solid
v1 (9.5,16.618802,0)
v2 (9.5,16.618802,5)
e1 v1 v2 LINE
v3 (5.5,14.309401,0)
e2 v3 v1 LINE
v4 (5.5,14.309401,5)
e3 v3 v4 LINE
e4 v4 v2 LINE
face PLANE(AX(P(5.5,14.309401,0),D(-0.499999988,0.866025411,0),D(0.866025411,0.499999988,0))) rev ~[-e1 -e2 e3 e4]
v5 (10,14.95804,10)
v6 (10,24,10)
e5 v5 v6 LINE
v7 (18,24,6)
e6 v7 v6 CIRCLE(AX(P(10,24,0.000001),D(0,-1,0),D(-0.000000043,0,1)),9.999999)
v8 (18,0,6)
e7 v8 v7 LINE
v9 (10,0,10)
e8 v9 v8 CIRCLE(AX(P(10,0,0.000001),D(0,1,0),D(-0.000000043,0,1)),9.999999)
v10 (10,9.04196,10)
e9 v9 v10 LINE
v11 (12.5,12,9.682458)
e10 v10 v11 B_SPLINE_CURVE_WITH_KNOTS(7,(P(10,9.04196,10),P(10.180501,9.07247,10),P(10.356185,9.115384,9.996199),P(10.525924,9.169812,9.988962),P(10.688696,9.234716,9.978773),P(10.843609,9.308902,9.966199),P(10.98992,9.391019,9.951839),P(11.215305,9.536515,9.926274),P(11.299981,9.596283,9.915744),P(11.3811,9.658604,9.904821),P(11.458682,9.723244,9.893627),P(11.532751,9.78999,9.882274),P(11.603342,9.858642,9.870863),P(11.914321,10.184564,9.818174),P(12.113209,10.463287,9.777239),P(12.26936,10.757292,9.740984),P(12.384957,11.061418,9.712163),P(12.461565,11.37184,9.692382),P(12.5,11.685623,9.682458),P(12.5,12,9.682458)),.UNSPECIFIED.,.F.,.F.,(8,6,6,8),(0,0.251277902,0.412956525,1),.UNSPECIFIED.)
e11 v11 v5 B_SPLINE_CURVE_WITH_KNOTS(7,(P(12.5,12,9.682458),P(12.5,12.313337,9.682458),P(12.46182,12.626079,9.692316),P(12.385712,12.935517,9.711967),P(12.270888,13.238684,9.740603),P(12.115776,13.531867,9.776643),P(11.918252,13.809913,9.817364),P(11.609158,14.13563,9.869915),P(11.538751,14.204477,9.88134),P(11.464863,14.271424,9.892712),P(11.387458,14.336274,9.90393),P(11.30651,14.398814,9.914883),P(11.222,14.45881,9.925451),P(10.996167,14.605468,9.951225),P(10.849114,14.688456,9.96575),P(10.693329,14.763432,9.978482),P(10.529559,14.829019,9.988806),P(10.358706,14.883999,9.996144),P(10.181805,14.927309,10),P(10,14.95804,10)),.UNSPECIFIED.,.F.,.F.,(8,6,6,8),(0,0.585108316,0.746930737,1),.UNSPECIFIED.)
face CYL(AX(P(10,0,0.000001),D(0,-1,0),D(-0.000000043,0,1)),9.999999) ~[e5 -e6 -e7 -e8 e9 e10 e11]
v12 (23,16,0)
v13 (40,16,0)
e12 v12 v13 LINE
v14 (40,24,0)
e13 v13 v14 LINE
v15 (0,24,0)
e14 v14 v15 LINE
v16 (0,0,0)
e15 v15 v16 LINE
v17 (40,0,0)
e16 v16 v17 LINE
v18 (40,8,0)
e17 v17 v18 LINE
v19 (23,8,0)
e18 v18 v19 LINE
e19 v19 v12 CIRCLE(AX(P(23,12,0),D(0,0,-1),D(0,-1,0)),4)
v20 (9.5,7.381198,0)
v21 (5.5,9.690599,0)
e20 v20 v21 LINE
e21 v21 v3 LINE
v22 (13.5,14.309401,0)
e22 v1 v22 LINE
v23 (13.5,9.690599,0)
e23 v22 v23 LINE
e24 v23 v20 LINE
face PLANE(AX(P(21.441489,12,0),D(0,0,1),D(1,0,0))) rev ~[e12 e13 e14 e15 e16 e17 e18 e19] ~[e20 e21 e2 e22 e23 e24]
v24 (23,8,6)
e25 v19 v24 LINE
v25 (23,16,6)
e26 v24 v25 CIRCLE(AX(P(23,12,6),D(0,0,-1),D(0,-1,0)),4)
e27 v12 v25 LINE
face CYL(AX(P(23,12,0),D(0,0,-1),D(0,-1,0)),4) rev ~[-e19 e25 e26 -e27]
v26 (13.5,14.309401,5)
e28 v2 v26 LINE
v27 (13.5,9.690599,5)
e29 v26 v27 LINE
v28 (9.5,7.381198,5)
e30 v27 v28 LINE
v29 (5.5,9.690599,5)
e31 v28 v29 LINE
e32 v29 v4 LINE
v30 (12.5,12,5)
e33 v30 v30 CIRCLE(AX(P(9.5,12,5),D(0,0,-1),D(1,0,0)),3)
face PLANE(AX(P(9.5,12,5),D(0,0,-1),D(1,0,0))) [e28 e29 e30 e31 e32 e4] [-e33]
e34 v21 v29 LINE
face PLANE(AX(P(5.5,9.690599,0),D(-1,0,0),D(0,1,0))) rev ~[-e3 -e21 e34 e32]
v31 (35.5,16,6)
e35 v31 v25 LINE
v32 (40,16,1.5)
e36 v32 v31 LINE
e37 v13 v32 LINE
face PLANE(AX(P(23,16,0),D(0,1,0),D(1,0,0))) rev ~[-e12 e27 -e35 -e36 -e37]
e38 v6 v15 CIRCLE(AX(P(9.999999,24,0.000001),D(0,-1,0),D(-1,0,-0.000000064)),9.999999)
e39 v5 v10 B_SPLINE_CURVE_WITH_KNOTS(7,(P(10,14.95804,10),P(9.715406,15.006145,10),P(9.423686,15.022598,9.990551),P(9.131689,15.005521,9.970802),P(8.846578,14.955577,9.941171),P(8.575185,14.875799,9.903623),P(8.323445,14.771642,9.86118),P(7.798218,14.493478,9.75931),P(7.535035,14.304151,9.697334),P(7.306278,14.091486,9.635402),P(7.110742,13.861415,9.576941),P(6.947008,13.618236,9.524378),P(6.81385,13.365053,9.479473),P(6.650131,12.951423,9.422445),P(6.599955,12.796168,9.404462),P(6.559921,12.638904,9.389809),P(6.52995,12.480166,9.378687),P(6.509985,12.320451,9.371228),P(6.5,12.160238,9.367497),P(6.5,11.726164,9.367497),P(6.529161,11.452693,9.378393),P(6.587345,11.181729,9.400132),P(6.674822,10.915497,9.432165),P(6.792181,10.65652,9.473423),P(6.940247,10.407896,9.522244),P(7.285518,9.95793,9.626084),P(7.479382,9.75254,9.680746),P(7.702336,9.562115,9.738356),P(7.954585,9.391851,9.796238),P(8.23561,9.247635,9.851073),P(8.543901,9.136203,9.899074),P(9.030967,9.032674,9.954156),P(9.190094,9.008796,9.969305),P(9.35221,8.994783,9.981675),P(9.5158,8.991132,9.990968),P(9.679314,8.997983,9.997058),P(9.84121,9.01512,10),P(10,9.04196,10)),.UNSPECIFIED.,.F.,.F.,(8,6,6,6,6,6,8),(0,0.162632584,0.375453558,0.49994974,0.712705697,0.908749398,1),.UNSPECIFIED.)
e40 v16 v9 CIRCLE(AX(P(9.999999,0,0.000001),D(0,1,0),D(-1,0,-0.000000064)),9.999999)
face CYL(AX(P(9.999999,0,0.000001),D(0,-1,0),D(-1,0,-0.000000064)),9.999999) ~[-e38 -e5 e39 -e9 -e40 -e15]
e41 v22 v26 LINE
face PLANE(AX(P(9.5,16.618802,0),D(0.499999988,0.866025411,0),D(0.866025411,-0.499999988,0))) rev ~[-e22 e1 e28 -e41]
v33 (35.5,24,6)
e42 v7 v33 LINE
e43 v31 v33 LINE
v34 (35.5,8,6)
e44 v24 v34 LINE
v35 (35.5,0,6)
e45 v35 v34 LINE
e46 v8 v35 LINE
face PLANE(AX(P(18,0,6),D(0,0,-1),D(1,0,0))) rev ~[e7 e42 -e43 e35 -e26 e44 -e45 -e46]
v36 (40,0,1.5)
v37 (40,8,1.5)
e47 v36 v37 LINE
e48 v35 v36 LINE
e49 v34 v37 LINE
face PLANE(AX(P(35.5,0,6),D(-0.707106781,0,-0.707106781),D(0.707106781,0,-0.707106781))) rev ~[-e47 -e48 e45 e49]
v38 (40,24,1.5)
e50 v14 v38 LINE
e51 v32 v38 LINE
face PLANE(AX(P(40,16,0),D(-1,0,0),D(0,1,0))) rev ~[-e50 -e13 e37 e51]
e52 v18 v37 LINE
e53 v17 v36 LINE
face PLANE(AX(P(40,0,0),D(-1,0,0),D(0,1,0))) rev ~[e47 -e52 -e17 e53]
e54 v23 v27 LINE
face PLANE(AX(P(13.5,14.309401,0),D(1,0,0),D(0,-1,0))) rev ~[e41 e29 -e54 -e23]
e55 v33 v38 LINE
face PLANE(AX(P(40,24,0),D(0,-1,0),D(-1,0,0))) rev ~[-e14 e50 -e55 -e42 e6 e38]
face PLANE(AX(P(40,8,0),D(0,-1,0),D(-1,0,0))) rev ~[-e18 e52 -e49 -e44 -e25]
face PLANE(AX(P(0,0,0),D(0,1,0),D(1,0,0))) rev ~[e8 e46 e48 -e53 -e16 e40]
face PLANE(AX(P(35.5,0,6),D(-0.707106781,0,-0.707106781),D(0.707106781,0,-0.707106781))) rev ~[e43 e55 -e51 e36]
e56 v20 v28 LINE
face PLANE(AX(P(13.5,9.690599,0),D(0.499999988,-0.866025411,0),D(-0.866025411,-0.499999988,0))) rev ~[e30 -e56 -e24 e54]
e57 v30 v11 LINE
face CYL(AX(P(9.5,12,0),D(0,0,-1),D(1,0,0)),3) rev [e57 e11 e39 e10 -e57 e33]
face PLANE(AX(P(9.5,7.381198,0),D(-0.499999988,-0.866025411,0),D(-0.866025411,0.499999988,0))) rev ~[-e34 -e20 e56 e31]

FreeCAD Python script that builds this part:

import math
import FreeCAD as App
import Part
import Sketcher

V = App.Vector
Q = App.Units.Quantity

doc = App.newDocument("Part")
body = doc.addObject("PartDesign::Body", "Body")

# Sketch on XY plane
sketch1 = body.newObject("Sketcher::SketchObject", "Sketch")
sketch1.AttachmentSupport = (doc.getObject("XY_Plane"), [""])
sketch1.MapMode = "FlatFace"
sketch1.addGeometry(Part.LineSegment(V(0, 24, 0), V(0, 0, 0)), False)
sketch1.addGeometry(Part.LineSegment(V(0, 0, 0), V(40, 0, 0)), False)
sketch1.addGeometry(Part.LineSegment(V(40, 0, 0), V(40, 8, 0)), False)
sketch1.addGeometry(Part.LineSegment(V(40, 8, 0), V(23, 8, 0)), False)
sketch1.addGeometry(Part.ArcOfCircle(Part.Circle(V(23, 12, 0), V(0, 0, 1), 4), math.radians(90), math.radians(270)), False)
sketch1.addGeometry(Part.LineSegment(V(23, 16, 0), V(40, 16, 0)), False)
sketch1.addGeometry(Part.LineSegment(V(40, 16, 0), V(40, 24, 0)), False)
sketch1.addGeometry(Part.LineSegment(V(40, 24, 0), V(0, 24, 0)), False)
sketch1.addGeometry(Part.Circle(V(9.5, 12, 0), V(0, 0, 1), 3), False)
sketch1.addConstraint(Sketcher.Constraint("Coincident", 0, 2, 1, 1))
sketch1.addConstraint(Sketcher.Constraint("Coincident", 1, 2, 2, 1))
sketch1.addConstraint(Sketcher.Constraint("Coincident", 2, 2, 3, 1))
sketch1.addConstraint(Sketcher.Constraint("Tangent", 3, 2, 4, 2))
sketch1.addConstraint(Sketcher.Constraint("Tangent", 4, 1, 5, 1))
sketch1.addConstraint(Sketcher.Constraint("Coincident", 5, 2, 6, 1))
sketch1.addConstraint(Sketcher.Constraint("Coincident", 6, 2, 7, 1))
sketch1.addConstraint(Sketcher.Constraint("Coincident", 7, 2, 0, 1))
sketch1.addConstraint(Sketcher.Constraint("Vertical", 0))
sketch1.addConstraint(Sketcher.Constraint("Horizontal", 1))
sketch1.addConstraint(Sketcher.Constraint("Vertical", 2))
sketch1.addConstraint(Sketcher.Constraint("Horizontal", 3))
sketch1.addConstraint(Sketcher.Constraint("Horizontal", 5))
sketch1.addConstraint(Sketcher.Constraint("Vertical", 6))
sketch1.addConstraint(Sketcher.Constraint("Horizontal", 7))
sketch1.addConstraint(Sketcher.Constraint("Coincident", 0, 2, -1, 1))
sketch1.addConstraint(Sketcher.Constraint("Horizontal", 4, 3, 8, 3))
sketch1.addConstraint(Sketcher.Constraint("Vertical", 2, 2, 5, 2))
sketch1.addConstraint(Sketcher.Constraint("Equal", 2, 6))
sketch1.addConstraint(Sketcher.Constraint("Diameter", 8, Q("6 mm")))
sketch1.addConstraint(Sketcher.Constraint("Radius", 4, Q("4 mm")))
sketch1.addConstraint(Sketcher.Constraint("DistanceX", 1, 1, 1, 2, Q("40 mm")))
sketch1.addConstraint(Sketcher.Constraint("DistanceX", 3, 2, 3, 1, Q("17 mm")))
sketch1.addConstraint(Sketcher.Constraint("DistanceY", 0, 2, 0, 1, Q("24 mm")))
sketch1.addConstraint(Sketcher.Constraint("DistanceX", -1, 1, 8, 3, Q("9.5 mm")))
pad1 = body.newObject("PartDesign::Pad", "Pad")
pad1.Profile = sketch1
pad1.Length = 10

# Sketch on XY plane
sketch2 = body.newObject("Sketcher::SketchObject", "Sketch001")
sketch2.AttachmentSupport = (doc.getObject("XY_Plane"), [""])
sketch2.MapMode = "FlatFace"
sketch2.addGeometry(Part.LineSegment(V(9.5, 16.6, 0), V(13.5, 14.3, 0)), False)
sketch2.addGeometry(Part.LineSegment(V(13.5, 14.3, 0), V(13.5, 9.7, 0)), False)
sketch2.addGeometry(Part.LineSegment(V(13.5, 9.7, 0), V(9.5, 7.4, 0)), False)
sketch2.addGeometry(Part.LineSegment(V(9.5, 7.4, 0), V(5.5, 9.7, 0)), False)
sketch2.addGeometry(Part.LineSegment(V(5.5, 9.7, 0), V(5.5, 14.3, 0)), False)
sketch2.addGeometry(Part.LineSegment(V(5.5, 14.3, 0), V(9.5, 16.6, 0)), False)
sketch2.addGeometry(Part.Circle(V(9.5, 12, 0), V(0, 0, 1), 3), False)
sketch2.addConstraint(Sketcher.Constraint("Coincident", 0, 2, 1, 1))
sketch2.addConstraint(Sketcher.Constraint("Coincident", 1, 2, 2, 1))
sketch2.addConstraint(Sketcher.Constraint("Coincident", 2, 2, 3, 1))
sketch2.addConstraint(Sketcher.Constraint("Coincident", 3, 2, 4, 1))
sketch2.addConstraint(Sketcher.Constraint("Coincident", 4, 2, 5, 1))
sketch2.addConstraint(Sketcher.Constraint("Coincident", 5, 2, 0, 1))
sketch2.addConstraint(Sketcher.Constraint("Vertical", 1))
sketch2.addConstraint(Sketcher.Constraint("Vertical", 4))
sketch2.addConstraint(Sketcher.Constraint("Parallel", 0, 3))
sketch2.addConstraint(Sketcher.Constraint("Parallel", 2, 5))
sketch2.addConstraint(Sketcher.Constraint("Horizontal", 1, 2, 3, 2))
sketch2.addConstraint(Sketcher.Constraint("Horizontal", 0, 2, 4, 2))
sketch2.addConstraint(Sketcher.Constraint("Vertical", 6, 3, 2, 2))
sketch2.addConstraint(Sketcher.Constraint("Vertical", 2, 2, 5, 2))
sketch2.addConstraint(Sketcher.Constraint("Diameter", 6, Q("6 mm")))
sketch2.addConstraint(Sketcher.Constraint("Angle", 0, Q("-29.999999 deg")))
sketch2.addConstraint(Sketcher.Constraint("DistanceY", -1, 1, 6, 3, Q("12 mm")))
sketch2.addConstraint(Sketcher.Constraint("DistanceX", 6, 3, 0, 2, Q("4 mm")))
sketch2.addConstraint(Sketcher.Constraint("DistanceX", -1, 1, 6, 3, Q("9.5 mm")))
sketch2.addConstraint(Sketcher.Constraint("DistanceY", 1, 2, 1, 1, Q("4.618802 mm")))
sketch2.addConstraint(Sketcher.Constraint("DistanceY", -1, 1, 0, 2, Q("14.309401 mm")))
pocket1 = body.newObject("PartDesign::Pocket", "Pocket")
pocket1.Profile = sketch2
pocket1.Length = 5
pocket1.Reversed = True

# Sketch on XZ plane
sketch3 = body.newObject("Sketcher::SketchObject", "Sketch002")
sketch3.AttachmentSupport = (doc.getObject("XZ_Plane"), [""])
sketch3.MapMode = "FlatFace"
sketch3.addGeometry(Part.LineSegment(V(0, 10, 0), V(0, 0, 0)), False)
sketch3.addGeometry(Part.ArcOfCircle(Part.Circle(V(10, 0, 0), V(0, 0, 1), 10), math.radians(90), math.radians(180)), False)
sketch3.addGeometry(Part.LineSegment(V(10, 10, 0), V(0, 10, 0)), False)
sketch3.addGeometry(Part.LineSegment(V(36, 6, 0), V(40, 2, 0)), False)
sketch3.addGeometry(Part.LineSegment(V(40, 2, 0), V(40, 10, 0)), False)
sketch3.addGeometry(Part.LineSegment(V(40, 10, 0), V(10, 10, 0)), False)
sketch3.addGeometry(Part.ArcOfCircle(Part.Circle(V(10, 0, 0), V(0, 0, 1), 10), math.radians(37), math.radians(90)), False)
sketch3.addGeometry(Part.LineSegment(V(18, 6, 0), V(36, 6, 0)), False)
sketch3.addConstraint(Sketcher.Constraint("Tangent", 0, 2, 1, 2))
sketch3.addConstraint(Sketcher.Constraint("Tangent", 1, 1, 2, 1))
sketch3.addConstraint(Sketcher.Constraint("Coincident", 2, 2, 0, 1))
sketch3.addConstraint(Sketcher.Constraint("Coincident", 3, 2, 4, 1))
sketch3.addConstraint(Sketcher.Constraint("Coincident", 4, 2, 5, 1))
sketch3.addConstraint(Sketcher.Constraint("Tangent", 5, 2, 6, 2))
sketch3.addConstraint(Sketcher.Constraint("Coincident", 6, 1, 7, 1))
sketch3.addConstraint(Sketcher.Constraint("Coincident", 7, 2, 3, 1))
sketch3.addConstraint(Sketcher.Constraint("Vertical", 0))
sketch3.addConstraint(Sketcher.Constraint("Horizontal", 2))
sketch3.addConstraint(Sketcher.Constraint("Vertical", 4))
sketch3.addConstraint(Sketcher.Constraint("Horizontal", 5))
sketch3.addConstraint(Sketcher.Constraint("Horizontal", 7))
sketch3.addConstraint(Sketcher.Constraint("Coincident", 0, 2, -1, 1))
sketch3.addConstraint(Sketcher.Constraint("Coincident", 6, 3, 1, 3))
sketch3.addConstraint(Sketcher.Constraint("Equal", 1, 6))
sketch3.addConstraint(Sketcher.Constraint("Radius", 1, Q("9.999999 mm")))
sketch3.addConstraint(Sketcher.Constraint("DistanceX", 5, 2, 5, 1, Q("30 mm")))
sketch3.addConstraint(Sketcher.Constraint("Angle", 3, Q("-45 deg")))
sketch3.addConstraint(Sketcher.Constraint("DistanceX", 7, 1, 7, 2, Q("17.5 mm")))
sketch3.addConstraint(Sketcher.Constraint("DistanceY", 4, 1, 4, 2, Q("8.5 mm")))
pocket2 = body.newObject("PartDesign::Pocket", "Pocket001")
pocket2.Profile = sketch3
pocket2.Type = "ThroughAll"

doc.recompute()
